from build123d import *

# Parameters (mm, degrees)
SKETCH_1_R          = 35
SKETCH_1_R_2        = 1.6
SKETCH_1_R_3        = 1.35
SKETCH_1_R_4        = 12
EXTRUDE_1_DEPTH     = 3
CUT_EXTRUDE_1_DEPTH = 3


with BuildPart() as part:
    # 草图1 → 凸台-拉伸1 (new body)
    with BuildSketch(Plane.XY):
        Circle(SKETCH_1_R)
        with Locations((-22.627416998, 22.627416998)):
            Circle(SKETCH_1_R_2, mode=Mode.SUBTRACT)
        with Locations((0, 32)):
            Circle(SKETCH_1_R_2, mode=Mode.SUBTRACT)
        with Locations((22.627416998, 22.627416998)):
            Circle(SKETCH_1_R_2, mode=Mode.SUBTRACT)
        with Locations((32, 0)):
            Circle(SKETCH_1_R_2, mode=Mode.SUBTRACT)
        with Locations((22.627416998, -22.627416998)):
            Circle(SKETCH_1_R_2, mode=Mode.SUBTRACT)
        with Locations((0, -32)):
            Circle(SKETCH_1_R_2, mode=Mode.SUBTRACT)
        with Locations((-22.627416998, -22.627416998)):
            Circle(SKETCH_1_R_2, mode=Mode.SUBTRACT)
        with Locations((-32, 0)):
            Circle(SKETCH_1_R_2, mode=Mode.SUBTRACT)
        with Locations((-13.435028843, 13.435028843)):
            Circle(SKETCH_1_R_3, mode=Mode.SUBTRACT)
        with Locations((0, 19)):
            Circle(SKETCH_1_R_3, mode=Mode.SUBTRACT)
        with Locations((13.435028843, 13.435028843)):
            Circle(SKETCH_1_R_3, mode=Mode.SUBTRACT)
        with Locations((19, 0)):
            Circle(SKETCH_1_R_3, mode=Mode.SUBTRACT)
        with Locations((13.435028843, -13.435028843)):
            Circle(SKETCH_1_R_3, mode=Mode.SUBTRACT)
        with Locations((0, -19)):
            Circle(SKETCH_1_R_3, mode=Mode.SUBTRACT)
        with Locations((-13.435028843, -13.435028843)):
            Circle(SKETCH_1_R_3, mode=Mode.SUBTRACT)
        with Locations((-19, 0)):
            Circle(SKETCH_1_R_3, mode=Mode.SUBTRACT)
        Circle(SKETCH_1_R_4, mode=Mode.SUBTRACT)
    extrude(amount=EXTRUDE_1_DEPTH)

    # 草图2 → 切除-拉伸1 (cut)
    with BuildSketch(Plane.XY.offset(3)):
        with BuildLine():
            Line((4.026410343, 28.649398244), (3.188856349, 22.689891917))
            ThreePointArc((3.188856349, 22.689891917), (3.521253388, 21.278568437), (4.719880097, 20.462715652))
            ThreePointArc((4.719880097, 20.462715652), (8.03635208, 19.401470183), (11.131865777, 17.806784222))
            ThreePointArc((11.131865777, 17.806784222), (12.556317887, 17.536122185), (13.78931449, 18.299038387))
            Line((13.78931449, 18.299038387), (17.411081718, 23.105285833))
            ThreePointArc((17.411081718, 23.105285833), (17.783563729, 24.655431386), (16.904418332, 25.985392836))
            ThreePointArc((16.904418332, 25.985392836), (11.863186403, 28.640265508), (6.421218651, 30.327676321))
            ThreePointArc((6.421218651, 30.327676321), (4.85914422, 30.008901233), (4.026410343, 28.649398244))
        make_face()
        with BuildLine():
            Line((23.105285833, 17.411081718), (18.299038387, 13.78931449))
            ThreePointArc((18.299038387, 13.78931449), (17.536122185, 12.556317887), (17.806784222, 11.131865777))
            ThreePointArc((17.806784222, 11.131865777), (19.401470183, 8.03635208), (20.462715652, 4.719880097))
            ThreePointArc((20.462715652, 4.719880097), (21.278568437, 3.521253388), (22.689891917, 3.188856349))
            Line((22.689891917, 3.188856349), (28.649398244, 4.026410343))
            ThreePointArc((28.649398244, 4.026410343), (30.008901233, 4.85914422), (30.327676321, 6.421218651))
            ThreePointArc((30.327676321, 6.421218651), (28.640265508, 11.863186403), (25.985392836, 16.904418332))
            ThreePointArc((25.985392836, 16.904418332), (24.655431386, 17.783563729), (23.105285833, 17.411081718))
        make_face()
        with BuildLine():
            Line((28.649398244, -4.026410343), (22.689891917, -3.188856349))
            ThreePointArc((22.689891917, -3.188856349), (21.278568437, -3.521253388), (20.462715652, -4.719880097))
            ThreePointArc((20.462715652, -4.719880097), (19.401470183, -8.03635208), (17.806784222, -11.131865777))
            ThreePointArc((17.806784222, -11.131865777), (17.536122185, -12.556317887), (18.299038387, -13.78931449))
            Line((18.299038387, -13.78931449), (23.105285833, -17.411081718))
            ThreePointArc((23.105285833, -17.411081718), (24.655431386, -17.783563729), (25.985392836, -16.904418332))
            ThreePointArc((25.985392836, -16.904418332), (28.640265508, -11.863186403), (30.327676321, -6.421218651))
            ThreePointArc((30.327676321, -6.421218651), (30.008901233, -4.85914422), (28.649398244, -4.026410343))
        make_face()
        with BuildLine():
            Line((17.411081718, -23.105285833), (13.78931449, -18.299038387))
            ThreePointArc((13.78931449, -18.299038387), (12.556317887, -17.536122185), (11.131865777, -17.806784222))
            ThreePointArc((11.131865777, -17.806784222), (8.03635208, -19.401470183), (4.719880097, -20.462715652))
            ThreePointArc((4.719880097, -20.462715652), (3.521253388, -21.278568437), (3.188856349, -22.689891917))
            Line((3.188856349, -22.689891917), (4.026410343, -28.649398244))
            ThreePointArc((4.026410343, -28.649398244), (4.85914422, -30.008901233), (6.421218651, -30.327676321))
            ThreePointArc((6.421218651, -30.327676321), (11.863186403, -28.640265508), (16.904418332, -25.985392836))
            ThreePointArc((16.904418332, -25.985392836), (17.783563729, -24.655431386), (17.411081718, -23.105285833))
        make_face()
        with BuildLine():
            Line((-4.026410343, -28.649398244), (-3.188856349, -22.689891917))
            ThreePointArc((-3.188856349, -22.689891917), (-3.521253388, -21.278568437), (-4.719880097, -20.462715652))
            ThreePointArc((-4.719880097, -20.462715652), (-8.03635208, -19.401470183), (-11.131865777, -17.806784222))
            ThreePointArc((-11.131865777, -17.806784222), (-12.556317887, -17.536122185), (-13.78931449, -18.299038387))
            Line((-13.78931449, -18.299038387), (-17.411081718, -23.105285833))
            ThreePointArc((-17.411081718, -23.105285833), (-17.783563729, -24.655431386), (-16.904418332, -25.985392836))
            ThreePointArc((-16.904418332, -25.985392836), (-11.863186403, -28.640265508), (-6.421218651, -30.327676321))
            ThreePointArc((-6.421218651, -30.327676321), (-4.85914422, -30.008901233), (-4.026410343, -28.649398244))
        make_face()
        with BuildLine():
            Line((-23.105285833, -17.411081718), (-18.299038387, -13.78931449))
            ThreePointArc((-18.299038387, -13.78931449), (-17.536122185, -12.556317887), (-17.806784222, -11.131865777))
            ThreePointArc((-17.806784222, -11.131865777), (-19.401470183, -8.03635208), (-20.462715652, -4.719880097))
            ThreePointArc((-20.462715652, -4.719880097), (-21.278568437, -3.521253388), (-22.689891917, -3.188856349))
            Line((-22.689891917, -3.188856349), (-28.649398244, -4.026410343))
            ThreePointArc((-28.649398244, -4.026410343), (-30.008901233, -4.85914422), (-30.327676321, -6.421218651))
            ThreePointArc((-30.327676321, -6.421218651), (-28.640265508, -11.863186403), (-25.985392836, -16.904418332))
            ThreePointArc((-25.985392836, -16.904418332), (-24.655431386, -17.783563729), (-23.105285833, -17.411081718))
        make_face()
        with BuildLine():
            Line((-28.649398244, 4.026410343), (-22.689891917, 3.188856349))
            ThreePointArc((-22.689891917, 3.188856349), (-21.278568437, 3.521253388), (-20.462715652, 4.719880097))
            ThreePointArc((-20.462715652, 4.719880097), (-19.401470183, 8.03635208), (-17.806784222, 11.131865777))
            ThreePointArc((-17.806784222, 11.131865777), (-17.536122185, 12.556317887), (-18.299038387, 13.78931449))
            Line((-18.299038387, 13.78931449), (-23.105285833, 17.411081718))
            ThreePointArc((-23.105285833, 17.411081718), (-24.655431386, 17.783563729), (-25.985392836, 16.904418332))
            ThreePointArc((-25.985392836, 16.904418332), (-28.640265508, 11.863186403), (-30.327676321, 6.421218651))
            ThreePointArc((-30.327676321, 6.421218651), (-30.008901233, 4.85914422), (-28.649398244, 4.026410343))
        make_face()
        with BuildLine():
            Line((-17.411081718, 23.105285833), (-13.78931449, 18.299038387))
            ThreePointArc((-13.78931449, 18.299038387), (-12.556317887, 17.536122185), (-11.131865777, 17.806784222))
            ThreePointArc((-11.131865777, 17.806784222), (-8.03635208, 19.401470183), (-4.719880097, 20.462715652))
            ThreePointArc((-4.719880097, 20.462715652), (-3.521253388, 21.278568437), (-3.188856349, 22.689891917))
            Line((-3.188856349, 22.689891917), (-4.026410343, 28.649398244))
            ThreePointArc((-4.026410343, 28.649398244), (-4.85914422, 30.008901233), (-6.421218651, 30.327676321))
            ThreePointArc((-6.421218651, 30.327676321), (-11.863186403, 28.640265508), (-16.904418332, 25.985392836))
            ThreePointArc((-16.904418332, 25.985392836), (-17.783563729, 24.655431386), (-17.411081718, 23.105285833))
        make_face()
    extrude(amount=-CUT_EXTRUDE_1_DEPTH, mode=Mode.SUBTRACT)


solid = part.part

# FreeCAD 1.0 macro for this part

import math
import FreeCAD as App
import Part
import Sketcher

V = App.Vector
Q = App.Units.Quantity

doc = App.newDocument("Part")
body = doc.addObject("PartDesign::Body", "Body")

sketch1 = body.newObject("Sketcher::SketchObject", "Sketch")
sketch1.AttachmentSupport = (doc.getObject("XY_Plane"), [""])
sketch1.MapMode = "FlatFace"
sketch1.addGeometry([
    Part.Circle(V(0, 0, 0), V(0, 0, 1), 35),
    Part.Circle(V(-22.6, -22.6, 0), V(0, 0, 1), 1.6),
    Part.Circle(V(-13.4, -13.4, 0), V(0, 0, 1), 1.4),
    Part.Circle(V(0, -32, 0), V(0, 0, 1), 1.6),
    Part.Circle(V(0, -19, 0), V(0, 0, 1), 1.4),
    Part.Circle(V(22.6, -22.6, 0), V(0, 0, 1), 1.6),
    Part.Circle(V(13.4, -13.4, 0), V(0, 0, 1), 1.4),
    Part.Circle(V(-32, 0, 0), V(0, 0, 1), 1.6),
    Part.Circle(V(-19, 0, 0), V(0, 0, 1), 1.4),
    Part.Circle(V(-13.4, 13.4, 0), V(0, 0, 1), 1.4),
    Part.Circle(V(-22.6, 22.6, 0), V(0, 0, 1), 1.6),
    Part.Circle(V(0, 0, 0), V(0, 0, 1), 12),
    Part.Circle(V(13.4, 13.4, 0), V(0, 0, 1), 1.4),
    Part.Circle(V(19, 0, 0), V(0, 0, 1), 1.4),
    Part.Circle(V(32, 0, 0), V(0, 0, 1), 1.6),
    Part.Circle(V(0, 19, 0), V(0, 0, 1), 1.4),
    Part.Circle(V(0, 32, 0), V(0, 0, 1), 1.6),
    Part.Circle(V(22.6, 22.6, 0), V(0, 0, 1), 1.6),
], False)
sketch1.addConstraint([
    Sketcher.Constraint("Coincident", 0, 3, -1, 1),
    Sketcher.Constraint("Coincident", 11, 3, -1, 1),
    Sketcher.Constraint("Equal", 1, 3),
    Sketcher.Constraint("Equal", 2, 4),
    Sketcher.Constraint("Equal", 3, 5),
    Sketcher.Constraint("Equal", 4, 6),
    Sketcher.Constraint("Equal", 5, 7),
    Sketcher.Constraint("Equal", 6, 8),
    Sketcher.Constraint("Equal", 8, 9),
    Sketcher.Constraint("Equal", 7, 10),
    Sketcher.Constraint("Equal", 9, 12),
    Sketcher.Constraint("Equal", 12, 13),
    Sketcher.Constraint("Equal", 10, 14),
    Sketcher.Constraint("Equal", 13, 15),
    Sketcher.Constraint("Equal", 14, 16),
    Sketcher.Constraint("Equal", 16, 17),
    Sketcher.Constraint("Symmetric", 6, 3, 9, 3, -1, 1),
    Sketcher.Constraint("Symmetric", 5, 3, 10, 3, -1, 1),
    Sketcher.Constraint("Symmetric", 2, 3, 12, 3, -1, 1),
    Sketcher.Constraint("Symmetric", 8, 3, 13, 3, -1, 1),
    Sketcher.Constraint("Symmetric", 7, 3, 14, 3, -1, 1),
    Sketcher.Constraint("Symmetric", 4, 3, 15, 3, -1, 1),
    Sketcher.Constraint("Symmetric", 3, 3, 16, 3, -1, 1),
    Sketcher.Constraint("Symmetric", 1, 3, 17, 3, -1, 1),
    Sketcher.Constraint("Symmetric", 1, 3, 5, 3, -2),
    Sketcher.Constraint("Symmetric", 2, 3, 6, 3, -2),
    Sketcher.Constraint("PointOnObject", 3, 3, -2),
    Sketcher.Constraint("PointOnObject", 4, 3, -2),
    Sketcher.Constraint("PointOnObject", 7, 3, -1),
    Sketcher.Constraint("PointOnObject", 8, 3, -1),
    Sketcher.Constraint("Diameter", 0, Q("70 mm")),
    Sketcher.Constraint("Diameter", 11, Q("24 mm")),
    Sketcher.Constraint("Diameter", 1, Q("3.2 mm")),
    Sketcher.Constraint("Diameter", 2, Q("2.7 mm")),
    Sketcher.Constraint("DistanceY", 3, 3, -1, 1, Q("32 mm")),
    Sketcher.Constraint("DistanceY", 4, 3, -1, 1, Q("19 mm")),
    Sketcher.Constraint("DistanceX", 7, 3, -1, 1, Q("32 mm")),
    Sketcher.Constraint("DistanceX", 8, 3, -1, 1, Q("19 mm")),
    Sketcher.Constraint("DistanceX", 2, 3, -1, 1, Q("13.435029 mm")),
    Sketcher.Constraint("DistanceY", 2, 3, -1, 1, Q("13.435029 mm")),
    Sketcher.Constraint("DistanceX", 1, 3, 2, 3, Q("9.192388 mm")),
    Sketcher.Constraint("DistanceY", 1, 3, 2, 3, Q("9.192388 mm")),
])
pad1 = body.newObject("PartDesign::Pad", "Pad")
pad1.Profile = sketch1
pad1.Length = 3

sketch2 = body.newObject("Sketcher::SketchObject", "Sketch001")
sketch2.AttachmentSupport = (doc.getObject("XY_Plane"), [""])
sketch2.MapMode = "FlatFace"
sketch2.AttachmentOffset = App.Placement(V(0, 0, 3), App.Rotation())
sketch2.addGeometry([
    Part.LineSegment(V(4, 28.6, 0), V(3.2, 22.7, 0)),
    Part.ArcOfCircle(Part.Circle(V(5.2, 22.4, 0), V(0, 0, 1), 2), math.radians(172), math.radians(257)),
    Part.ArcOfCircle(Part.Circle(V(0, 0, 0), V(0, 0, 1), 21), math.radians(57.99), math.radians(77.01)),
    Part.ArcOfCircle(Part.Circle(V(12.2, 19.5, 0), V(0, 0, 1), 2), math.radians(-122), math.radians(-37)),
    Part.LineSegment(V(13.8, 18.3, 0), V(17.4, 23.1, 0)),
    Part.ArcOfCircle(Part.Circle(V(15.8, 24.3, 0), V(0, 0, 1), 2), math.radians(-37), math.radians(57)),
    Part.ArcOfCircle(Part.Circle(V(0, 0, 0), V(0, 0, 1), 31), math.radians(57), math.radians(78)),
    Part.ArcOfCircle(Part.Circle(V(6, 28.4, 0), V(0, 0, 1), 2), math.radians(78), math.radians(172)),
    Part.LineSegment(V(23.1, 17.4, 0), V(18.3, 13.8, 0)),
    Part.ArcOfCircle(Part.Circle(V(19.5, 12.2, 0), V(0, 0, 1), 2), math.radians(127), math.radians(212)),
    Part.ArcOfCircle(Part.Circle(V(0, 0, 0), V(0, 0, 1), 21), math.radians(12.99), math.radians(32.01)),
    Part.ArcOfCircle(Part.Circle(V(22.4, 5.2, 0), V(0, 0, 1), 2), math.radians(-167), math.radians(-82)),
    Part.LineSegment(V(22.7, 3.2, 0), V(28.6, 4, 0)),
    Part.ArcOfCircle(Part.Circle(V(28.4, 6, 0), V(0, 0, 1), 2), math.radians(-82), math.radians(12)),
    Part.ArcOfCircle(Part.Circle(V(0, 0, 0), V(0, 0, 1), 31), math.radians(12), math.radians(33)),
    Part.ArcOfCircle(Part.Circle(V(24.3, 15.8, 0), V(0, 0, 1), 2), math.radians(33), math.radians(127)),
    Part.LineSegment(V(28.6, -4, 0), V(22.7, -3.2, 0)),
    Part.ArcOfCircle(Part.Circle(V(22.4, -5.2, 0), V(0, 0, 1), 2), math.radians(82), math.radians(167)),
    Part.ArcOfCircle(Part.Circle(V(0, 0, 0), V(0, 0, 1), 21), math.radians(-32.01), math.radians(-12.99)),
    Part.ArcOfCircle(Part.Circle(V(19.5, -12.2, 0), V(0, 0, 1), 2), math.radians(148), math.radians(233)),
    Part.LineSegment(V(18.3, -13.8, 0), V(23.1, -17.4, 0)),
    Part.ArcOfCircle(Part.Circle(V(24.3, -15.8, 0), V(0, 0, 1), 2), math.radians(-127), math.radians(-33)),
    Part.ArcOfCircle(Part.Circle(V(0, 0, 0), V(0, 0, 1), 31), math.radians(-33), math.radians(-12)),
    Part.ArcOfCircle(Part.Circle(V(28.4, -6, 0), V(0, 0, 1), 2), math.radians(-12), math.radians(82)),
    Part.LineSegment(V(17.4, -23.1, 0), V(13.8, -18.3, 0)),
    Part.ArcOfCircle(Part.Circle(V(12.2, -19.5, 0), V(0, 0, 1), 2), math.radians(37), math.radians(122)),
    Part.ArcOfCircle(Part.Circle(V(0, 0, 0), V(0, 0, 1), 21), math.radians(-77.01), math.radians(-57.99)),
    Part.ArcOfCircle(Part.Circle(V(5.2, -22.4, 0), V(0, 0, 1), 2), math.radians(103), math.radians(188)),
    Part.LineSegment(V(3.2, -22.7, 0), V(4, -28.6, 0)),
    Part.ArcOfCircle(Part.Circle(V(6, -28.4, 0), V(0, 0, 1), 2), math.radians(-172), math.radians(-78)),
    Part.ArcOfCircle(Part.Circle(V(0, 0, 0), V(0, 0, 1), 31), math.radians(-78), math.radians(-57)),
    Part.ArcOfCircle(Part.Circle(V(15.8, -24.3, 0), V(0, 0, 1), 2), math.radians(-57), math.radians(37)),
    Part.LineSegment(V(-4, -28.6, 0), V(-3.2, -22.7, 0)),
    Part.ArcOfCircle(Part.Circle(V(-5.2, -22.4, 0), V(0, 0, 1), 2), math.radians(-8), math.radians(77)),
    Part.ArcOfCircle(Part.Circle(V(0, 0, 0), V(0, 0, 1), 21), math.radians(-122.01), math.radians(-102.99)),
    Part.ArcOfCircle(Part.Circle(V(-12.2, -19.5, 0), V(0, 0, 1), 2), math.radians(58), math.radians(143)),
    Part.LineSegment(V(-13.8, -18.3, 0), V(-17.4, -23.1, 0)),
    Part.ArcOfCircle(Part.Circle(V(-15.8, -24.3, 0), V(0, 0, 1), 2), math.radians(143), math.radians(237)),
    Part.ArcOfCircle(Part.Circle(V(0, 0, 0), V(0, 0, 1), 31), math.radians(-123), math.radians(-102)),
    Part.ArcOfCircle(Part.Circle(V(-6, -28.4, 0), V(0, 0, 1), 2), math.radians(-102), math.radians(-8)),
    Part.LineSegment(V(-23.1, -17.4, 0), V(-18.3, -13.8, 0)),
    Part.ArcOfCircle(Part.Circle(V(-19.5, -12.2, 0), V(0, 0, 1), 2), math.radians(-53), math.radians(32)),
    Part.ArcOfCircle(Part.Circle(V(0, 0, 0), V(0, 0, 1), 21), math.radians(-167.01), math.radians(-147.99)),
    Part.ArcOfCircle(Part.Circle(V(-22.4, -5.2, 0), V(0, 0, 1), 2), math.radians(13), math.radians(98)),
    Part.LineSegment(V(-22.7, -3.2, 0), V(-28.6, -4, 0)),
    Part.ArcOfCircle(Part.Circle(V(-28.4, -6, 0), V(0, 0, 1), 2), math.radians(98), math.radians(192)),
    Part.ArcOfCircle(Part.Circle(V(0, 0, 0), V(0, 0, 1), 31), math.radians(-168), math.radians(-147)),
    Part.ArcOfCircle(Part.Circle(V(-24.3, -15.8, 0), V(0, 0, 1), 2), math.radians(-147), math.radians(-53)),
    Part.LineSegment(V(-28.6, 4, 0), V(-22.7, 3.2, 0)),
    Part.ArcOfCircle(Part.Circle(V(-22.4, 5.2, 0), V(0, 0, 1), 2), math.radians(-98), math.radians(-13)),
    Part.ArcOfCircle(Part.Circle(V(0, 0, 0), V(0, 0, 1), 21), math.radians(147.99), math.radians(167.01)),
    Part.ArcOfCircle(Part.Circle(V(-19.5, 12.2, 0), V(0, 0, 1), 2), math.radians(-32), math.radians(53)),
    Part.LineSegment(V(-18.3, 13.8, 0), V(-23.1, 17.4, 0)),
    Part.ArcOfCircle(Part.Circle(V(-24.3, 15.8, 0), V(0, 0, 1), 2), math.radians(53), math.radians(147)),
    Part.ArcOfCircle(Part.Circle(V(0, 0, 0), V(0, 0, 1), 31), math.radians(147), math.radians(168)),
    Part.ArcOfCircle(Part.Circle(V(-28.4, 6, 0), V(0, 0, 1), 2), math.radians(168), math.radians(262)),
    Part.LineSegment(V(-17.4, 23.1, 0), V(-13.8, 18.3, 0)),
    Part.ArcOfCircle(Part.Circle(V(-12.2, 19.5, 0), V(0, 0, 1), 2), math.radians(-143), math.radians(-58)),
    Part.ArcOfCircle(Part.Circle(V(0, 0, 0), V(0, 0, 1), 21), math.radians(102.99), math.radians(122.01)),
    Part.ArcOfCircle(Part.Circle(V(-5.2, 22.4, 0), V(0, 0, 1), 2), math.radians(-77), math.radians(8)),
    Part.LineSegment(V(-3.2, 22.7, 0), V(-4, 28.6, 0)),
    Part.ArcOfCircle(Part.Circle(V(-6, 28.4, 0), V(0, 0, 1), 2), math.radians(8), math.radians(102)),
    Part.ArcOfCircle(Part.Circle(V(0, 0, 0), V(0, 0, 1), 31), math.radians(102), math.radians(123)),
    Part.ArcOfCircle(Part.Circle(V(-15.8, 24.3, 0), V(0, 0, 1), 2), math.radians(123), math.radians(217)),
], False)
sketch2.addConstraint([
    Sketcher.Constraint("Tangent", 0, 2, 1, 1),
    Sketcher.Constraint("Tangent", 1, 2, 2, 2),
    Sketcher.Constraint("Tangent", 2, 1, 3, 1),
    Sketcher.Constraint("Tangent", 3, 2, 4, 1),
    Sketcher.Constraint("Tangent", 4, 2, 5, 1),
    Sketcher.Constraint("Tangent", 5, 2, 6, 1),
    Sketcher.Constraint("Tangent", 6, 2, 7, 1),
    Sketcher.Constraint("Tangent", 7, 2, 0, 1),
    Sketcher.Constraint("Tangent", 8, 2, 9, 1),
    Sketcher.Constraint("Tangent", 9, 2, 10, 2),
    Sketcher.Constraint("Tangent", 10, 1, 11, 1),
    Sketcher.Constraint("Tangent", 11, 2, 12, 1),
    Sketcher.Constraint("Tangent", 12, 2, 13, 1),
    Sketcher.Constraint("Tangent", 13, 2, 14, 1),
    Sketcher.Constraint("Tangent", 14, 2, 15, 1),
    Sketcher.Constraint("Tangent", 15, 2, 8, 1),
    Sketcher.Constraint("Tangent", 16, 2, 17, 1),
    Sketcher.Constraint("Tangent", 17, 2, 18, 2),
    Sketcher.Constraint("Tangent", 18, 1, 19, 1),
    Sketcher.Constraint("Tangent", 19, 2, 20, 1),
    Sketcher.Constraint("Tangent", 20, 2, 21, 1),
    Sketcher.Constraint("Tangent", 21, 2, 22, 1),
    Sketcher.Constraint("Tangent", 22, 2, 23, 1),
    Sketcher.Constraint("Tangent", 23, 2, 16, 1),
    Sketcher.Constraint("Tangent", 24, 2, 25, 1),
    Sketcher.Constraint("Tangent", 25, 2, 26, 2),
    Sketcher.Constraint("Tangent", 26, 1, 27, 1),
    Sketcher.Constraint("Tangent", 27, 2, 28, 1),
    Sketcher.Constraint("Tangent", 28, 2, 29, 1),
    Sketcher.Constraint("Tangent", 29, 2, 30, 1),
    Sketcher.Constraint("Tangent", 30, 2, 31, 1),
    Sketcher.Constraint("Tangent", 31, 2, 24, 1),
    Sketcher.Constraint("Tangent", 32, 2, 33, 1),
    Sketcher.Constraint("Tangent", 33, 2, 34, 2),
    Sketcher.Constraint("Tangent", 34, 1, 35, 1),
    Sketcher.Constraint("Tangent", 35, 2, 36, 1),
    Sketcher.Constraint("Tangent", 36, 2, 37, 1),
    Sketcher.Constraint("Tangent", 37, 2, 38, 1),
    Sketcher.Constraint("Tangent", 38, 2, 39, 1),
    Sketcher.Constraint("Tangent", 39, 2, 32, 1),
    Sketcher.Constraint("Tangent", 40, 2, 41, 1),
    Sketcher.Constraint("Tangent", 41, 2, 42, 2),
    Sketcher.Constraint("Tangent", 42, 1, 43, 1),
    Sketcher.Constraint("Tangent", 43, 2, 44, 1),
    Sketcher.Constraint("Tangent", 44, 2, 45, 1),
    Sketcher.Constraint("Tangent", 45, 2, 46, 1),
    Sketcher.Constraint("Tangent", 46, 2, 47, 1),
    Sketcher.Constraint("Tangent", 47, 2, 40, 1),
    Sketcher.Constraint("Tangent", 48, 2, 49, 1),
    Sketcher.Constraint("Tangent", 49, 2, 50, 2),
    Sketcher.Constraint("Tangent", 50, 1, 51, 1),
    Sketcher.Constraint("Tangent", 51, 2, 52, 1),
    Sketcher.Constraint("Tangent", 52, 2, 53, 1),
    Sketcher.Constraint("Tangent", 53, 2, 54, 1),
    Sketcher.Constraint("Tangent", 54, 2, 55, 1),
    Sketcher.Constraint("Tangent", 55, 2, 48, 1),
    Sketcher.Constraint("Tangent", 56, 2, 57, 1),
    Sketcher.Constraint("Tangent", 57, 2, 58, 2),
    Sketcher.Constraint("Tangent", 58, 1, 59, 1),
    Sketcher.Constraint("Tangent", 59, 2, 60, 1),
    Sketcher.Constraint("Tangent", 60, 2, 61, 1),
    Sketcher.Constraint("Tangent", 61, 2, 62, 1),
    Sketcher.Constraint("Tangent", 62, 2, 63, 1),
    Sketcher.Constraint("Tangent", 63, 2, 56, 1),
    Sketcher.Constraint("Coincident", 2, 3, -1, 1),
    Sketcher.Constraint("Coincident", 6, 3, -1, 1),
    Sketcher.Constraint("Coincident", 10, 3, -1, 1),
    Sketcher.Constraint("Coincident", 14, 3, -1, 1),
    Sketcher.Constraint("Coincident", 18, 3, -1, 1),
    Sketcher.Constraint("Coincident", 22, 3, -1, 1),
    Sketcher.Constraint("Coincident", 26, 3, -1, 1),
    Sketcher.Constraint("Coincident", 30, 3, -1, 1),
    Sketcher.Constraint("Coincident", 34, 3, -1, 1),
    Sketcher.Constraint("Coincident", 38, 3, -1, 1),
    Sketcher.Constraint("Coincident", 42, 3, -1, 1),
    Sketcher.Constraint("Coincident", 46, 3, -1, 1),
    Sketcher.Constraint("Coincident", 50, 3, -1, 1),
    Sketcher.Constraint("Coincident", 54, 3, -1, 1),
    Sketcher.Constraint("Coincident", 58, 3, -1, 1),
    Sketcher.Constraint("Coincident", 62, 3, -1, 1),
    Sketcher.Constraint("Equal", 1, 3),
    Sketcher.Constraint("Equal", 3, 5),
    Sketcher.Constraint("Equal", 5, 7),
    Sketcher.Constraint("Equal", 7, 9),
    Sketcher.Constraint("Equal", 2, 10),
    Sketcher.Constraint("Equal", 9, 11),
    Sketcher.Constraint("Equal", 11, 13),
    Sketcher.Constraint("Equal", 6, 14),
    Sketcher.Constraint("Equal", 13, 15),
    Sketcher.Constraint("Equal", 15, 17),
    Sketcher.Constraint("Equal", 10, 18),
    Sketcher.Constraint("Equal", 17, 19),
    Sketcher.Constraint("Equal", 19, 21),
    Sketcher.Constraint("Equal", 14, 22),
    Sketcher.Constraint("Equal", 21, 23),
    Sketcher.Constraint("Equal", 23, 25),
    Sketcher.Constraint("Equal", 18, 26),
    Sketcher.Constraint("Equal", 25, 27),
    Sketcher.Constraint("Equal", 27, 29),
    Sketcher.Constraint("Equal", 22, 30),
    Sketcher.Constraint("Equal", 29, 31),
    Sketcher.Constraint("Equal", 31, 33),
    Sketcher.Constraint("Equal", 26, 34),
    Sketcher.Constraint("Equal", 33, 35),
    Sketcher.Constraint("Equal", 35, 37),
    Sketcher.Constraint("Equal", 30, 38),
    Sketcher.Constraint("Equal", 37, 39),
    Sketcher.Constraint("Equal", 39, 41),
    Sketcher.Constraint("Equal", 34, 42),
    Sketcher.Constraint("Equal", 41, 43),
    Sketcher.Constraint("Equal", 43, 45),
    Sketcher.Constraint("Equal", 38, 46),
    Sketcher.Constraint("Equal", 45, 47),
    Sketcher.Constraint("Equal", 47, 49),
    Sketcher.Constraint("Equal", 42, 50),
    Sketcher.Constraint("Equal", 49, 51),
    Sketcher.Constraint("Equal", 51, 53),
    Sketcher.Constraint("Equal", 46, 54),
    Sketcher.Constraint("Equal", 53, 55),
    Sketcher.Constraint("Equal", 55, 57),
    Sketcher.Constraint("Equal", 50, 58),
    Sketcher.Constraint("Equal", 57, 59),
    Sketcher.Constraint("Equal", 59, 61),
    Sketcher.Constraint("Equal", 54, 62),
    Sketcher.Constraint("Equal", 61, 63),
    Sketcher.Constraint("Symmetric", 0, 2, 32, 2, -1, 1),
    Sketcher.Constraint("Symmetric", 3, 2, 35, 2, -1, 1),
    Sketcher.Constraint("Symmetric", 8, 2, 40, 2, -1, 1),
    Sketcher.Constraint("Symmetric", 11, 2, 43, 2, -1, 1),
    Sketcher.Constraint("Symmetric", 16, 2, 48, 2, -1, 1),
    Sketcher.Constraint("Symmetric", 19, 2, 51, 2, -1, 1),
    Sketcher.Constraint("Symmetric", 24, 2, 56, 2, -1, 1),
    Sketcher.Constraint("Symmetric", 27, 2, 59, 2, -1, 1),
    Sketcher.Constraint("Symmetric", 27, 2, 32, 2, -2),
    Sketcher.Constraint("Symmetric", 24, 2, 35, 2, -2),
    Sketcher.Constraint("Symmetric", 19, 2, 40, 2, -2),
    Sketcher.Constraint("Symmetric", 16, 2, 43, 2, -2),
    Sketcher.Constraint("Perpendicular", 0, 16),
    Sketcher.Constraint("Perpendicular", 4, 20),
    Sketcher.Constraint("Equal", 0, 4),
    Sketcher.Constraint("Equal", 4, 8),
    Sketcher.Constraint("Equal", 8, 12),
    Sketcher.Constraint("Radius", 1, Q("2 mm")),
    Sketcher.Constraint("Radius", 2, Q("21 mm")),
    Sketcher.Constraint("Radius", 6, Q("31 mm")),
    Sketcher.Constraint("Angle", 0, Q("-98 deg")),
    Sketcher.Constraint("Angle", 4, Q("53 deg")),
    Sketcher.Constraint("DistanceY", -1, 1, 7, 2, Q("28.649398 mm")),
])
pocket1 = body.newObject("PartDesign::Pocket", "Pocket")
pocket1.Profile = sketch2
pocket1.Length = 3

doc.recompute()
